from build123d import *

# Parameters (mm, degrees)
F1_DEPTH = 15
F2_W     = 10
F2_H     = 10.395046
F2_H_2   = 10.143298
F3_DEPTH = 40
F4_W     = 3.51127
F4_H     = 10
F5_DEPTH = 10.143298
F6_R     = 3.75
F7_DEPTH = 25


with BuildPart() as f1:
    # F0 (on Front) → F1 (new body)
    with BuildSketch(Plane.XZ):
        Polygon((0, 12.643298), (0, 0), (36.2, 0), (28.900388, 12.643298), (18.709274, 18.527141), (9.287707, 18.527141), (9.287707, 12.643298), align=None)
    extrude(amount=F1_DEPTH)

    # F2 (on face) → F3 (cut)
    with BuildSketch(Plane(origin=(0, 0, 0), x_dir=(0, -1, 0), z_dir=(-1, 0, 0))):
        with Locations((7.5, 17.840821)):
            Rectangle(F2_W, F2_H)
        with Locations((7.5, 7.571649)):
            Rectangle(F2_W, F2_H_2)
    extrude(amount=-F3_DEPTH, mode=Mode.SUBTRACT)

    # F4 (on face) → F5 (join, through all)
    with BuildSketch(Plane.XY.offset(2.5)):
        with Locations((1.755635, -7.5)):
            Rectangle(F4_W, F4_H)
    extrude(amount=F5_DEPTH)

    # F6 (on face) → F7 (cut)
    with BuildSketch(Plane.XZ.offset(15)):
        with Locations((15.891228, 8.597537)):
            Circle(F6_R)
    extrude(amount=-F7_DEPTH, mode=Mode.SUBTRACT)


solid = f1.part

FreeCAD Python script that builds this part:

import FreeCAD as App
import Part
import Sketcher

V = App.Vector
Q = App.Units.Quantity


def add_polygon(sketch, points):
    """Adds a closed chain of lines whose ends are joined by coincident constraints."""
    first, n = sketch.GeometryCount, len(points)
    for a, b in zip(points, points[1:] + points[:1]):
        sketch.addGeometry(Part.LineSegment(App.Vector(*a, 0), App.Vector(*b, 0)), False)
    for i in range(n):
        sketch.addConstraint(Sketcher.Constraint("Coincident", first + i, 2, first + (i + 1) % n, 1))

doc = App.newDocument("Part")
body = doc.addObject("PartDesign::Body", "Body")

# Sketch on XZ plane
sketch1 = body.newObject("Sketcher::SketchObject", "Sketch")
sketch1.AttachmentSupport = (doc.getObject("XZ_Plane"), [""])
sketch1.MapMode = "FlatFace"
add_polygon(sketch1, [(0, 13), (0, 0), (36, 0), (29, 13), (19, 19), (9, 19), (9, 13)])  # lines 0-6
sketch1.addConstraint([
    Sketcher.Constraint("Vertical", 0),
    Sketcher.Constraint("Horizontal", 1),
    Sketcher.Constraint("Horizontal", 4),
    Sketcher.Constraint("Vertical", 5),
    Sketcher.Constraint("Horizontal", 6),
    Sketcher.Constraint("Coincident", 0, 2, -1, 1),
    Sketcher.Constraint("Horizontal", 2, 2, 5, 2),
    Sketcher.Constraint("Angle", 2, Q("120.000002 deg")),
    Sketcher.Constraint("Angle", 3, Q("149.999998 deg")),
    Sketcher.Constraint("DistanceX", 1, 1, 1, 2, Q("36.2 mm")),
    Sketcher.Constraint("DistanceX", 4, 2, 4, 1, Q("9.421567 mm")),
    Sketcher.Constraint("DistanceX", 6, 2, 6, 1, Q("9.287707 mm")),
    Sketcher.Constraint("DistanceY", 0, 2, 0, 1, Q("12.643298 mm")),
])
pad1 = body.newObject("PartDesign::Pad", "Pad")
pad1.Profile = sketch1
pad1.Length = 15

# Sketch on YZ plane
sketch2 = body.newObject("Sketcher::SketchObject", "Sketch001")
sketch2.AttachmentSupport = (doc.getObject("YZ_Plane"), [""])
sketch2.MapMode = "FlatFace"
add_polygon(sketch2, [(-2, 23), (-2, 2), (-12, 2), (-12, 23)])  # lines 0-3
sketch2.addConstraint([
    Sketcher.Constraint("Vertical", 0),
    Sketcher.Constraint("Horizontal", 1),
    Sketcher.Constraint("Vertical", 2),
    Sketcher.Constraint("Horizontal", 3),
    Sketcher.Constraint("DistanceX", 1, 2, 1, 1, Q("10 mm")),
    Sketcher.Constraint("DistanceX", 0, 2, -1, 1, Q("2.5 mm")),
    Sketcher.Constraint("DistanceY", -1, 1, 0, 2, Q("2.5 mm")),
    Sketcher.Constraint("DistanceY", 0, 2, 0, 1, Q("20.538344 mm")),
])
pocket1 = body.newObject("PartDesign::Pocket", "Pocket")
pocket1.Profile = sketch2
pocket1.Length = 40
pocket1.Reversed = True

# Sketch on XY plane
sketch3 = body.newObject("Sketcher::SketchObject", "Sketch002")
sketch3.AttachmentSupport = (doc.getObject("XY_Plane"), [""])
sketch3.MapMode = "FlatFace"
sketch3.AttachmentOffset = App.Placement(V(0, 0, 2.5), App.Rotation())
add_polygon(sketch3, [(0, -2.5), (0, -12.5), (3.5, -12.5), (3.5, -2.5)])  # lines 0-3
sketch3.addConstraint([
    Sketcher.Constraint("Vertical", 0),
    Sketcher.Constraint("Horizontal", 1),
    Sketcher.Constraint("Vertical", 2),
    Sketcher.Constraint("Horizontal", 3),
    Sketcher.Constraint("PointOnObject", 0, 2, -2),
    Sketcher.Constraint("DistanceY", 0, 2, 0, 1, Q("10 mm")),
    Sketcher.Constraint("DistanceY", 0, 2, -1, 1, Q("12.5 mm")),
    Sketcher.Constraint("DistanceX", 1, 1, 1, 2, Q("3.51127 mm")),
])
pad2 = body.newObject("PartDesign::Pad", "Pad001")
pad2.Profile = sketch3
pad2.Length = 10.143298

# Sketch on XZ plane
sketch4 = body.newObject("Sketcher::SketchObject", "Sketch003")
sketch4.AttachmentSupport = (doc.getObject("XZ_Plane"), [""])
sketch4.MapMode = "FlatFace"
sketch4.AttachmentOffset = App.Placement(V(0, 0, 15), App.Rotation())
sketch4.addGeometry(Part.Circle(V(15.9, 8.6, 0), V(0, 0, 1), 3.8), False)
sketch4.addConstraint([
    Sketcher.Constraint("Diameter", 0, Q("7.5 mm")),
    Sketcher.Constraint("DistanceX", -1, 1, 0, 3, Q("15.891228 mm")),
    Sketcher.Constraint("DistanceY", -1, 1, 0, 3, Q("8.597537 mm")),
])
pocket2 = body.newObject("PartDesign::Pocket", "Pocket001")
pocket2.Profile = sketch4
pocket2.Length = 25

doc.recompute()
